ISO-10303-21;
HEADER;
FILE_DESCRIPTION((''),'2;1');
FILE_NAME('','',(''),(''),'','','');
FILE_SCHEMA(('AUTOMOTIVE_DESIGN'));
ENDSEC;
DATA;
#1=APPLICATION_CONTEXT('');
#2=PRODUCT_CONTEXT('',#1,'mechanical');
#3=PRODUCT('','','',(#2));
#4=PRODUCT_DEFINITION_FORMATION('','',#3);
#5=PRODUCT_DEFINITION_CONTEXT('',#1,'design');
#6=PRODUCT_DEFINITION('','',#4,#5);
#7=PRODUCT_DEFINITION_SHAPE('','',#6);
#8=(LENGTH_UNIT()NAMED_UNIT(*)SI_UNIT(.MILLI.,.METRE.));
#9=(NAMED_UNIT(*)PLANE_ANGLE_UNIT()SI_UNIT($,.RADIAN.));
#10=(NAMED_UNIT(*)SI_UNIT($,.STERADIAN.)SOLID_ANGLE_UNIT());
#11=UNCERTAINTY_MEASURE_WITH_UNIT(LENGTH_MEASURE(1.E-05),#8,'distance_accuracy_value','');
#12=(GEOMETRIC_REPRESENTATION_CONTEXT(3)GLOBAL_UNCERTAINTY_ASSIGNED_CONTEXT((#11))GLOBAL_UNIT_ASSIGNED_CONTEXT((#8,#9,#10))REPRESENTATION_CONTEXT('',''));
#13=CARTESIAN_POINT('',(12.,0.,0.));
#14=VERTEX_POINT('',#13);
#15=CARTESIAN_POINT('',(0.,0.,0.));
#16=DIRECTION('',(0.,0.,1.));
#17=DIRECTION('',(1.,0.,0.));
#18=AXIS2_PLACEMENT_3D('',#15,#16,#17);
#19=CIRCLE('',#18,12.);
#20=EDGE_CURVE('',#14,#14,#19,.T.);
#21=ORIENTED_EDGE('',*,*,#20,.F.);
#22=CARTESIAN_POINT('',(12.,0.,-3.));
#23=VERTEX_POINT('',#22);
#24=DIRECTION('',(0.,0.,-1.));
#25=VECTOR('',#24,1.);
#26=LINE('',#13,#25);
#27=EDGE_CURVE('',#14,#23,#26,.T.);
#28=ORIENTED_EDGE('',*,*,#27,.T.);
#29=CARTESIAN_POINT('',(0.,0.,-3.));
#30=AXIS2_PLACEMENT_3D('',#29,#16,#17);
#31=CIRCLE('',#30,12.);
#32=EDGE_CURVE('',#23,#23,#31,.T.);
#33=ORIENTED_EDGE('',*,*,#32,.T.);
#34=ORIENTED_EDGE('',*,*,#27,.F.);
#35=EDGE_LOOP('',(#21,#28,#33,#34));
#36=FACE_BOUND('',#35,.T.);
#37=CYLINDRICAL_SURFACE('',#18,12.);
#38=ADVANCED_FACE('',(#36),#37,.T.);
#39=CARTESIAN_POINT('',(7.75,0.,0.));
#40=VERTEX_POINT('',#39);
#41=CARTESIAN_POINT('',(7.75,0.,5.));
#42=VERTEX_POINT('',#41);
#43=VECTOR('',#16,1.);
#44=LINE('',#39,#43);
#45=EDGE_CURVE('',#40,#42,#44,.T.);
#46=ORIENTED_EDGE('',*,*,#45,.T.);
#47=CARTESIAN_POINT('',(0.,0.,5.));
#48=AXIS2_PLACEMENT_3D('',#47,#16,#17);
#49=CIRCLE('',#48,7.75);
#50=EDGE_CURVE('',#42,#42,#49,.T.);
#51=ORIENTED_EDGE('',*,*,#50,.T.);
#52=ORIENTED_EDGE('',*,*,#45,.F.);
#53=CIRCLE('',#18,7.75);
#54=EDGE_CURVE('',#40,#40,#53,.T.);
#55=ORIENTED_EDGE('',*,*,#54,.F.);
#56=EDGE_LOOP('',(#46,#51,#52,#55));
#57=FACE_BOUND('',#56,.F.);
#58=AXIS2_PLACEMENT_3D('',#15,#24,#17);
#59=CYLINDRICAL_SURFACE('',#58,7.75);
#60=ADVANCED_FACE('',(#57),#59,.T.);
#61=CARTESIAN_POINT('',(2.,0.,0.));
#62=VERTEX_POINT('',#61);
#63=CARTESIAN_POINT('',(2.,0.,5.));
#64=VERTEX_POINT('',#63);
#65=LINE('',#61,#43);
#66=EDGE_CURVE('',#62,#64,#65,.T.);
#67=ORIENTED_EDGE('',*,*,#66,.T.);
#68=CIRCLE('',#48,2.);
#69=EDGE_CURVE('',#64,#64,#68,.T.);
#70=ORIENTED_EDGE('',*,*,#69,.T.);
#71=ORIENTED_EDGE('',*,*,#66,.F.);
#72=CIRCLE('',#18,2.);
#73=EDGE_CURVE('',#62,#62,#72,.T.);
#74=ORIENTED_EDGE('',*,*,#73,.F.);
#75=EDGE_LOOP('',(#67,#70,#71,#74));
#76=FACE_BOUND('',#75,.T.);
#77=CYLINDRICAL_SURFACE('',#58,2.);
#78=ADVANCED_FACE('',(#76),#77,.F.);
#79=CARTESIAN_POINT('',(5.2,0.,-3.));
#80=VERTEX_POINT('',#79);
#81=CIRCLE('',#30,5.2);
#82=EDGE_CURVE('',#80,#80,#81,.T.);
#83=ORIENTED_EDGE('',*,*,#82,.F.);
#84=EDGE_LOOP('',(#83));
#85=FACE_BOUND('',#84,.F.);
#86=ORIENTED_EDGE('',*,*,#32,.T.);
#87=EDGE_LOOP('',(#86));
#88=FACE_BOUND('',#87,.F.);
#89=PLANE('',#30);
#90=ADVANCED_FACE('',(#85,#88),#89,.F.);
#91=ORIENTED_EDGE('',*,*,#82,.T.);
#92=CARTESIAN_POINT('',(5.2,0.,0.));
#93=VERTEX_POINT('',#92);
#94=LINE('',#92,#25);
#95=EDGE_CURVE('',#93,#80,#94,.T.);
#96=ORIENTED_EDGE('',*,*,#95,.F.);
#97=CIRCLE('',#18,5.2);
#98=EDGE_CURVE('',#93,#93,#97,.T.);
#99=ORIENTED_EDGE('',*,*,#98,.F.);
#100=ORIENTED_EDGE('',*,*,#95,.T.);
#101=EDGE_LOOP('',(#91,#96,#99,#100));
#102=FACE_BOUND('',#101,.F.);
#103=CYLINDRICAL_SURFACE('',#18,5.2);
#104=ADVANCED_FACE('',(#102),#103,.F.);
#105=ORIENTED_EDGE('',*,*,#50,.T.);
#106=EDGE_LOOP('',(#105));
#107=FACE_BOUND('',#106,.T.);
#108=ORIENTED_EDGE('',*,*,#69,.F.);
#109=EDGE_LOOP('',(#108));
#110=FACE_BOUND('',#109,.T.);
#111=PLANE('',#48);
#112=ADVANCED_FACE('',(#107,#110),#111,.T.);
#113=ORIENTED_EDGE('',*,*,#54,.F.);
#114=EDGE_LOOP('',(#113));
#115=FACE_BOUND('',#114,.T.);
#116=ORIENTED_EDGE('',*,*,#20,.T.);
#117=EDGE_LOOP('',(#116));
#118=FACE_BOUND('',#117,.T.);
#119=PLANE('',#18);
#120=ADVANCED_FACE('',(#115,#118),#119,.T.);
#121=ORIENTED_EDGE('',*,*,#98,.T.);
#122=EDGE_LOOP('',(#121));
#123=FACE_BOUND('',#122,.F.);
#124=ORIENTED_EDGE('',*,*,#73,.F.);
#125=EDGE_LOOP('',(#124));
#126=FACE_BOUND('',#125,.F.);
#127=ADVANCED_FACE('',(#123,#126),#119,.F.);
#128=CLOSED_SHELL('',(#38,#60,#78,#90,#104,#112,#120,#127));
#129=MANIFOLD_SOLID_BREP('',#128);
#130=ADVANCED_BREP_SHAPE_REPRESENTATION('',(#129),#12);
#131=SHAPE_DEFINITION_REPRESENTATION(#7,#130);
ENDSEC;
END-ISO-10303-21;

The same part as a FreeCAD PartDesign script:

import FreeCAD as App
import Part
import Sketcher

doc = App.newDocument("Part")
body = doc.addObject("PartDesign::Body", "Body")

# Sketch on XY plane
sketch1 = body.newObject("Sketcher::SketchObject", "Sketch")
sketch1.AttachmentSupport = (doc.getObject("XY_Plane"), [""])
sketch1.MapMode = "FlatFace"
sketch1.addGeometry([
    Part.Circle(App.Vector(0, 0, 0), App.Vector(0, 0, 1), 7.75),
    Part.Circle(App.Vector(0, 0, 0), App.Vector(0, 0, 1), 2),
], False)
sketch1.addConstraint([
    Sketcher.Constraint("Coincident", 0, 3, -1, 1),
    Sketcher.Constraint("Coincident", 1, 3, -1, 1),
    Sketcher.Constraint("Diameter", 1, 4.0),
    Sketcher.Constraint("Diameter", 0, 15.5),
])
pad1 = body.newObject("PartDesign::Pad", "Pad")
pad1.Profile = sketch1
pad1.Length = 5

# Sketch on XY plane
sketch2 = body.newObject("Sketcher::SketchObject", "Sketch001")
sketch2.AttachmentSupport = (doc.getObject("XY_Plane"), [""])
sketch2.MapMode = "FlatFace"
sketch2.addGeometry([
    Part.Circle(App.Vector(0, 0, 0), App.Vector(0, 0, 1), 12),
    Part.Circle(App.Vector(0, 0, 0), App.Vector(0, 0, 1), 5.2),
], False)
sketch2.addConstraint([
    Sketcher.Constraint("Coincident", 0, 3, -1, 1),
    Sketcher.Constraint("Coincident", 1, 3, -1, 1),
    Sketcher.Constraint("Diameter", 0, 24.0),
    Sketcher.Constraint("Diameter", 1, 10.4),
])
pad2 = body.newObject("PartDesign::Pad", "Pad001")
pad2.Profile = sketch2
pad2.Length = 3
pad2.Reversed = True

doc.recompute()
